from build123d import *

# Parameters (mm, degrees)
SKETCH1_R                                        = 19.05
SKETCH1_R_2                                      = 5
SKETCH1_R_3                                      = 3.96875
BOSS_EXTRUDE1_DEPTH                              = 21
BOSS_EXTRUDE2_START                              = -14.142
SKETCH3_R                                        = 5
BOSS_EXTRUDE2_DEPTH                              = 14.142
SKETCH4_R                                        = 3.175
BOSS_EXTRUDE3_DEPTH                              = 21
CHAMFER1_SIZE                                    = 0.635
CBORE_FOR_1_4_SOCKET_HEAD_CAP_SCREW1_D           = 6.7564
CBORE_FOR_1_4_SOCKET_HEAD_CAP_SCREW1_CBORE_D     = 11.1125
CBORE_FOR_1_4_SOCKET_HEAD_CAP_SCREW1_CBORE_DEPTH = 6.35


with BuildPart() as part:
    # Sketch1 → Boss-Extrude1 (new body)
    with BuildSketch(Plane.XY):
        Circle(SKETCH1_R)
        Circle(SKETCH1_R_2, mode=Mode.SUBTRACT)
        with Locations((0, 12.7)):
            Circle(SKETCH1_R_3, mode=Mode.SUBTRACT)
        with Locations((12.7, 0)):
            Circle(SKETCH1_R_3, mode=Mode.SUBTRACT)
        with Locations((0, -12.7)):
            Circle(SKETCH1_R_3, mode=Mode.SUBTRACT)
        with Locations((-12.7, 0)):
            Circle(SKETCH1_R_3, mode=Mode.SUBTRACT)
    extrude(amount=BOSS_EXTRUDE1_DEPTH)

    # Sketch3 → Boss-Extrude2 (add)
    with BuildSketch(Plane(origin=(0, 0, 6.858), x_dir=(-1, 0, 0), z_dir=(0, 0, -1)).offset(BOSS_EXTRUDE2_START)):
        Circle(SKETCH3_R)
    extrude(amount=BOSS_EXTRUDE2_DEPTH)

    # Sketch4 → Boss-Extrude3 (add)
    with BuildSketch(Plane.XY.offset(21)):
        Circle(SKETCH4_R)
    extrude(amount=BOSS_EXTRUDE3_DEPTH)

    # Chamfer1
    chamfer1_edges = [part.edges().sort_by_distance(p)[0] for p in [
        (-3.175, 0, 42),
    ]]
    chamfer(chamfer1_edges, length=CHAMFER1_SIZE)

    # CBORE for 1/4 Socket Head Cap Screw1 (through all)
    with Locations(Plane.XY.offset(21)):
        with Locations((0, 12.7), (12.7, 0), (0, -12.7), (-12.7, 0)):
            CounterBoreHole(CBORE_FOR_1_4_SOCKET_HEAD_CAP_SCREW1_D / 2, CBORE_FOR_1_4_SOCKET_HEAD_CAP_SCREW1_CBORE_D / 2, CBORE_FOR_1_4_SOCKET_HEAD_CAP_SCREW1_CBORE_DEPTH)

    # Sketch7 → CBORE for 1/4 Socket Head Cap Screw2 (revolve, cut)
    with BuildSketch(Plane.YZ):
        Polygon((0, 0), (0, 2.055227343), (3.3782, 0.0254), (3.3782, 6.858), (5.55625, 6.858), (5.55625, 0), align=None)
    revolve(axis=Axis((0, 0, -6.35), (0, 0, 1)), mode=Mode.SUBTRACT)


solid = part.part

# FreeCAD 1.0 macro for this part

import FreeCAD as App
import Part
import Sketcher

V = App.Vector
Q = App.Units.Quantity


def edges_at(feature, points):
    """Names of the edges that pass closest to the given points."""
    edges = feature.Shape.Edges
    near = lambda p: min(range(len(edges)), key=lambda i: edges[i].distToShape(Part.Vertex(*p))[0])
    return sorted({f"Edge{near(p) + 1}" for p in points})


def add_polygon(sketch, points):
    """Adds a closed chain of lines whose ends are joined by coincident constraints."""
    first, n = sketch.GeometryCount, len(points)
    for a, b in zip(points, points[1:] + points[:1]):
        sketch.addGeometry(Part.LineSegment(App.Vector(*a, 0), App.Vector(*b, 0)), False)
    for i in range(n):
        sketch.addConstraint(Sketcher.Constraint("Coincident", first + i, 2, first + (i + 1) % n, 1))

doc = App.newDocument("Part")
body = doc.addObject("PartDesign::Body", "Body")

# Sketch on XY plane
sketch1 = body.newObject("Sketcher::SketchObject", "Sketch")
sketch1.AttachmentSupport = (doc.getObject("XY_Plane"), [""])
sketch1.MapMode = "FlatFace"
sketch1.addGeometry([
    Part.Circle(V(0, 0, 0), V(0, 0, 1), 19.1),  # 0
    Part.Circle(V(0, -12.7, 0), V(0, 0, 1), 4),  # 1
    Part.Circle(V(-12.7, 0, 0), V(0, 0, 1), 4),  # 2
    Part.Circle(V(0, 0, 0), V(0, 0, 1), 5),  # 3
    Part.Circle(V(12.7, 0, 0), V(0, 0, 1), 4),  # 4
    Part.Circle(V(0, 12.7, 0), V(0, 0, 1), 4),  # 5
], False)
sketch1.addConstraint([
    Sketcher.Constraint("Coincident", 0, 3, -1, 1),
    Sketcher.Constraint("Coincident", 3, 3, -1, 1),
    Sketcher.Constraint("Equal", 1, 2),
    Sketcher.Constraint("Equal", 2, 4),
    Sketcher.Constraint("Equal", 4, 5),
    Sketcher.Constraint("Symmetric", 2, 3, 4, 3, -1, 1),
    Sketcher.Constraint("Symmetric", 1, 3, 5, 3, -1, 1),
    Sketcher.Constraint("PointOnObject", 1, 3, -2),
    Sketcher.Constraint("PointOnObject", 2, 3, -1),
    Sketcher.Constraint("Diameter", 0, Q("1.5 in")),
    Sketcher.Constraint("Diameter", 1, Q("0.3125 in")),
    Sketcher.Constraint("DistanceX", 2, 3, 4, 3, Q("1 in")),
    Sketcher.Constraint("DistanceY", 1, 3, 5, 3, Q("1 in")),
    Sketcher.Constraint("Diameter", 3, 10.0),
])
pad1 = body.newObject("PartDesign::Pad", "Pad")
pad1.Profile = sketch1
pad1.Length = 21

# Sketch on XY plane
sketch2 = body.newObject("Sketcher::SketchObject", "Sketch001")
sketch2.AttachmentSupport = (doc.getObject("XY_Plane"), [""])
sketch2.MapMode = "FlatFace"
sketch2.AttachmentOffset = App.Placement(V(0, 0, 21), App.Rotation())
sketch2.addGeometry(Part.Circle(V(0, 0, 0), V(0, 0, 1), 5), False)
sketch2.addConstraint([
    Sketcher.Constraint("Coincident", 0, 3, -1, 1),
    Sketcher.Constraint("Diameter", 0, 10.0),
])
pad2 = body.newObject("PartDesign::Pad", "Pad001")
pad2.Profile = sketch2
pad2.Length = 14.142
pad2.Reversed = True

# Sketch on XY plane
sketch3 = body.newObject("Sketcher::SketchObject", "Sketch002")
sketch3.AttachmentSupport = (doc.getObject("XY_Plane"), [""])
sketch3.MapMode = "FlatFace"
sketch3.AttachmentOffset = App.Placement(V(0, 0, 21), App.Rotation())
sketch3.addGeometry(Part.Circle(V(0, 0, 0), V(0, 0, 1), 3.2), False)
sketch3.addConstraint([
    Sketcher.Constraint("Coincident", 0, 3, -1, 1),
    Sketcher.Constraint("Diameter", 0, Q("0.25 in")),
])
pad3 = body.newObject("PartDesign::Pad", "Pad002")
pad3.Profile = sketch3
pad3.Length = 21
doc.recompute()

chamfer = body.newObject("PartDesign::Chamfer", "Chamfer")
chamfer.Base = (pad3, edges_at(pad3, [(-3.175, 0, 42)]))
chamfer.Size = Q("0.025 in")

# Sketch on XY plane
sketch4 = body.newObject("Sketcher::SketchObject", "Sketch003")
sketch4.AttachmentSupport = (doc.getObject("XY_Plane"), [""])
sketch4.MapMode = "FlatFace"
sketch4.AttachmentOffset = App.Placement(V(0, 0, 21), App.Rotation())
sketch4.addGeometry([
    Part.Circle(V(0, 12.7, 0), V(0, 0, 1), 3.4),
    Part.Circle(V(12.7, 0, 0), V(0, 0, 1), 3.4),
    Part.Circle(V(0, -12.7, 0), V(0, 0, 1), 3.4),
    Part.Circle(V(-12.7, 0, 0), V(0, 0, 1), 3.4),
], False)
sketch4.addConstraint([
    Sketcher.Constraint("Equal", 0, 1),
    Sketcher.Constraint("Equal", 1, 2),
    Sketcher.Constraint("Equal", 2, 3),
    Sketcher.Constraint("Symmetric", 0, 3, 2, 3, -1, 1),
    Sketcher.Constraint("Symmetric", 1, 3, 3, 3, -1, 1),
    Sketcher.Constraint("PointOnObject", 0, 3, -2),
    Sketcher.Constraint("PointOnObject", 1, 3, -1),
    Sketcher.Constraint("Diameter", 0, Q("0.266 in")),
    Sketcher.Constraint("DistanceY", 2, 3, 0, 3, Q("1 in")),
    Sketcher.Constraint("DistanceX", 3, 3, 1, 3, Q("1 in")),
])
doc.recompute()
hole = body.newObject("PartDesign::Hole", "Hole")
hole.Profile = sketch4
hole.ThreadType = "None"
hole.Diameter = Q("0.266 in")
hole.DepthType = "ThroughAll"
hole.HoleCutType = "Counterbore"
hole.HoleCutDiameter = Q("0.4375 in")
hole.HoleCutDepth = Q("0.25 in")

# Sketch on YZ plane
sketch5 = body.newObject("Sketcher::SketchObject", "Sketch004")
sketch5.AttachmentSupport = (doc.getObject("YZ_Plane"), [""])
sketch5.MapMode = "FlatFace"
add_polygon(sketch5, [(0, 2.1), (0, 0), (5.6, 0), (5.6, 6.9), (3.4, 6.9), (3.4, 0)])  # lines 0-5
sketch5.addConstraint([
    Sketcher.Constraint("Vertical", 0),
    Sketcher.Constraint("Horizontal", 1),
    Sketcher.Constraint("Vertical", 2),
    Sketcher.Constraint("Horizontal", 3),
    Sketcher.Constraint("Vertical", 4),
    Sketcher.Constraint("Coincident", 0, 2, -1, 1),
    Sketcher.Constraint("Angle", 5, Q("149 deg")),
    Sketcher.Constraint("DistanceY", 2, 1, 2, 2, Q("0.27 in")),
    Sketcher.Constraint("DistanceX", 1, 1, 1, 2, Q("0.21875 in")),
    Sketcher.Constraint("DistanceY", 4, 2, 4, 1, Q("0.269 in")),
    Sketcher.Constraint("DistanceX", -1, 1, 3, 2, Q("0.133 in")),
])
groove = body.newObject("PartDesign::Groove", "Groove")
groove.Profile = sketch5
groove.ReferenceAxis = (sketch5, ["V_Axis"])
groove.Angle = 360

doc.recompute()
